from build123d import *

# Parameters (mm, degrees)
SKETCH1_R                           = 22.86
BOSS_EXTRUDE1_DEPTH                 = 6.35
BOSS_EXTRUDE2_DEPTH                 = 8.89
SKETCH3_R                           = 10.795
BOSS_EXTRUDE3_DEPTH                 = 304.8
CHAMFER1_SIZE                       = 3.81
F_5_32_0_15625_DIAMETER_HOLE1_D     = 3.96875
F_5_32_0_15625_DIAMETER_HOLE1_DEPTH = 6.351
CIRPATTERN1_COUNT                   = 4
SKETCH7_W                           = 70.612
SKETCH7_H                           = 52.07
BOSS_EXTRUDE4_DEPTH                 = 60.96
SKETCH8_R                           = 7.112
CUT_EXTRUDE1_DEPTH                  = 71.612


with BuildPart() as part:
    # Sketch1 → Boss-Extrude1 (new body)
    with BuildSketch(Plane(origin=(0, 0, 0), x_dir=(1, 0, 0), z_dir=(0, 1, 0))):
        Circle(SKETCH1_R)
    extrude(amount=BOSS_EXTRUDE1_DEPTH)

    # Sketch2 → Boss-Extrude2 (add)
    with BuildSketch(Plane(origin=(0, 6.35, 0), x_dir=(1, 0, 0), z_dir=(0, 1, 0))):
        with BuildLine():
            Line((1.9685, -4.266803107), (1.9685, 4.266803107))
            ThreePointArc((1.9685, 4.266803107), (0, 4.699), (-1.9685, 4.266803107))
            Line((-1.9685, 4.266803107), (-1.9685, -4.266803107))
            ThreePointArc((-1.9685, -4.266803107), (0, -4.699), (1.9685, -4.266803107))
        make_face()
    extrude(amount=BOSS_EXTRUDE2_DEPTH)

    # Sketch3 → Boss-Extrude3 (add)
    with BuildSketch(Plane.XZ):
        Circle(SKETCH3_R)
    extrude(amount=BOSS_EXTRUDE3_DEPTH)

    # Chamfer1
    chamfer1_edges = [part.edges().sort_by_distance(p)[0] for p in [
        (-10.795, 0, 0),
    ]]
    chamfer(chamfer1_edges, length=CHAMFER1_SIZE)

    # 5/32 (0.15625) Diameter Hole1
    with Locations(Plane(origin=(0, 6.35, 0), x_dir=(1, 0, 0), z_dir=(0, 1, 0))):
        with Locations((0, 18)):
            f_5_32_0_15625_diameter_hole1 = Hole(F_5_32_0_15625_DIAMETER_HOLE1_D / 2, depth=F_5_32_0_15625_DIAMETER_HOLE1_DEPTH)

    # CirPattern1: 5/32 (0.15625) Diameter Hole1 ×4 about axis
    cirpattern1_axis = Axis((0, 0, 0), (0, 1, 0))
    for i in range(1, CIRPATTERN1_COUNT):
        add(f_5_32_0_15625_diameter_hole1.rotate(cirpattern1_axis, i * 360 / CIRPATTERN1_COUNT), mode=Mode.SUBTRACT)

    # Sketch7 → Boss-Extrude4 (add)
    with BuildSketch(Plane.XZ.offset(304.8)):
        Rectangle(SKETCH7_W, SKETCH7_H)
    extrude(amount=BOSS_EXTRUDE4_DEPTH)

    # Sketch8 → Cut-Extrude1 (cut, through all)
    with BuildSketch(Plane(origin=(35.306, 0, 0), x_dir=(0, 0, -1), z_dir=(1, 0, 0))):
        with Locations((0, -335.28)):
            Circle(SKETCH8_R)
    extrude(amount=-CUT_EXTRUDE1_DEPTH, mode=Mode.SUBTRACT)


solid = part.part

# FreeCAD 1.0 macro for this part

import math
import FreeCAD as App
import Part
import Sketcher

V = App.Vector
Q = App.Units.Quantity


def edges_at(feature, points):
    """Names of the edges that pass closest to the given points."""
    edges = feature.Shape.Edges
    near = lambda p: min(range(len(edges)), key=lambda i: edges[i].distToShape(Part.Vertex(*p))[0])
    return sorted({f"Edge{near(p) + 1}" for p in points})

doc = App.newDocument("Part")
body = doc.addObject("PartDesign::Body", "Body")

sketch1 = body.newObject("Sketcher::SketchObject", "Sketch")
sketch1.AttachmentSupport = (doc.getObject("XZ_Plane"), [""])
sketch1.MapMode = "FlatFace"
sketch1.addGeometry(Part.Circle(V(0, 0, 0), V(0, 0, 1), 22.86), False)
sketch1.addConstraint([
    Sketcher.Constraint("Coincident", 0, 3, -1, 1),
    Sketcher.Constraint("Diameter", 0, Q("1.8 in")),
])
pad1 = body.newObject("PartDesign::Pad", "Pad")
pad1.Profile = sketch1
pad1.Length = Q("0.25 in")
pad1.Reversed = True

sketch2 = body.newObject("Sketcher::SketchObject", "Sketch001")
sketch2.AttachmentSupport = (doc.getObject("XZ_Plane"), [""])
sketch2.MapMode = "FlatFace"
sketch2.AttachmentOffset = App.Placement(V(0, 0, -0.25 * 25.4), App.Rotation())
sketch2.addGeometry([
    Part.LineSegment(V(1.9685, 4.266803, 0), V(1.9685, -4.266803, 0)),
    Part.ArcOfCircle(Part.Circle(V(0, 0, 0), V(0, 0, 1), 4.699), math.radians(-114.766353), math.radians(-65.233647)),
    Part.LineSegment(V(-1.9685, -4.266803, 0), V(-1.9685, 4.266803, 0)),
    Part.ArcOfCircle(Part.Circle(V(0, 0, 0), V(0, 0, 1), 4.699), math.radians(65.233647), math.radians(114.766353)),
], False)
sketch2.addConstraint([
    Sketcher.Constraint("Coincident", 0, 2, 1, 2),
    Sketcher.Constraint("Coincident", 1, 1, 2, 1),
    Sketcher.Constraint("Coincident", 2, 2, 3, 2),
    Sketcher.Constraint("Coincident", 3, 1, 0, 1),
    Sketcher.Constraint("Vertical", 0),
    Sketcher.Constraint("Vertical", 2),
    Sketcher.Constraint("Coincident", 1, 3, -1, 1),
    Sketcher.Constraint("Coincident", 3, 3, -1, 1),
    Sketcher.Constraint("Equal", 1, 3),
    Sketcher.Constraint("Horizontal", 0, 2, 1, 1),
    Sketcher.Constraint("Radius", 1, Q("0.185 in")),
    Sketcher.Constraint("DistanceX", 1, 1, 0, 2, Q("0.155 in")),
])
pad2 = body.newObject("PartDesign::Pad", "Pad001")
pad2.Profile = sketch2
pad2.Length = Q("0.35 in")
pad2.Reversed = True

sketch3 = body.newObject("Sketcher::SketchObject", "Sketch002")
sketch3.AttachmentSupport = (doc.getObject("XZ_Plane"), [""])
sketch3.MapMode = "FlatFace"
sketch3.addGeometry(Part.Circle(V(0, 0, 0), V(0, 0, 1), 10.795), False)
sketch3.addConstraint([
    Sketcher.Constraint("Coincident", 0, 3, -1, 1),
    Sketcher.Constraint("Diameter", 0, Q("0.85 in")),
])
pad3 = body.newObject("PartDesign::Pad", "Pad002")
pad3.Profile = sketch3
pad3.Length = Q("12 in")
doc.recompute()

chamfer = body.newObject("PartDesign::Chamfer", "Chamfer")
chamfer.Base = (pad3, edges_at(pad3, [(-10.795, 0, 0)]))
chamfer.Size = Q("0.15 in")

sketch4 = body.newObject("Sketcher::SketchObject", "Sketch003")
sketch4.AttachmentSupport = (doc.getObject("XZ_Plane"), [""])
sketch4.MapMode = "FlatFace"
sketch4.AttachmentOffset = App.Placement(V(0, 0, -0.25 * 25.4), App.Rotation())
sketch4.addGeometry(Part.Circle(V(0, -18, 0), V(0, 0, 1), 1.984375), False)
sketch4.addConstraint([
    Sketcher.Constraint("PointOnObject", 0, 3, -2),
    Sketcher.Constraint("Diameter", 0, Q("0.15625 in")),
    Sketcher.Constraint("DistanceY", 0, 3, -1, 1, Q("18 mm")),
])
doc.recompute()
hole = body.newObject("PartDesign::Hole", "Hole")
hole.Profile = sketch4
hole.ThreadType = "None"
hole.Diameter = Q("0.15625 in")
hole.DepthType = "Dimension"
hole.Depth = 6.351
hole.DrillPoint = "Flat"
hole.Reversed = True
doc.recompute()

polarpattern = body.newObject("PartDesign::PolarPattern", "PolarPattern")
polarpattern.Originals = [hole]
polarpattern.Axis = (doc.getObject("Y_Axis"), [""])
polarpattern.Angle = 360
polarpattern.Occurrences = 4
body.Tip = polarpattern

sketch5 = body.newObject("Sketcher::SketchObject", "Sketch004")
sketch5.AttachmentSupport = (doc.getObject("XZ_Plane"), [""])
sketch5.MapMode = "FlatFace"
sketch5.AttachmentOffset = App.Placement(V(0, 0, 12 * 25.4), App.Rotation())
sketch5.addGeometry([
    Part.LineSegment(V(-35.306, 26.035, 0), V(-35.306, -26.035, 0)),
    Part.LineSegment(V(-35.306, -26.035, 0), V(35.306, -26.035, 0)),
    Part.LineSegment(V(35.306, -26.035, 0), V(35.306, 26.035, 0)),
    Part.LineSegment(V(35.306, 26.035, 0), V(-35.306, 26.035, 0)),
], False)
sketch5.addConstraint([
    Sketcher.Constraint("Coincident", 0, 2, 1, 1),
    Sketcher.Constraint("Coincident", 1, 2, 2, 1),
    Sketcher.Constraint("Coincident", 2, 2, 3, 1),
    Sketcher.Constraint("Coincident", 3, 2, 0, 1),
    Sketcher.Constraint("Vertical", 0),
    Sketcher.Constraint("Horizontal", 1),
    Sketcher.Constraint("Vertical", 2),
    Sketcher.Constraint("Horizontal", 3),
    Sketcher.Constraint("Symmetric", 0, 2, 2, 2, -1, 1),
    Sketcher.Constraint("DistanceX", 1, 1, 1, 2, Q("2.78 in")),
    Sketcher.Constraint("DistanceY", 0, 2, 0, 1, Q("2.05 in")),
])
pad4 = body.newObject("PartDesign::Pad", "Pad003")
pad4.Profile = sketch5
pad4.Length = Q("2.4 in")

sketch6 = body.newObject("Sketcher::SketchObject", "Sketch005")
sketch6.AttachmentSupport = (doc.getObject("YZ_Plane"), [""])
sketch6.MapMode = "FlatFace"
sketch6.AttachmentOffset = App.Placement(V(0, 0, 1.39 * 25.4), App.Rotation())
sketch6.addGeometry(Part.Circle(V(-335.28, 0, 0), V(0, 0, 1), 7.112), False)
sketch6.addConstraint([
    Sketcher.Constraint("PointOnObject", 0, 3, -1),
    Sketcher.Constraint("Diameter", 0, Q("0.56 in")),
    Sketcher.Constraint("DistanceX", 0, 3, -1, 1, Q("13.2 in")),
])
pocket1 = body.newObject("PartDesign::Pocket", "Pocket")
pocket1.Profile = sketch6
pocket1.Type = "ThroughAll"

doc.recompute()
